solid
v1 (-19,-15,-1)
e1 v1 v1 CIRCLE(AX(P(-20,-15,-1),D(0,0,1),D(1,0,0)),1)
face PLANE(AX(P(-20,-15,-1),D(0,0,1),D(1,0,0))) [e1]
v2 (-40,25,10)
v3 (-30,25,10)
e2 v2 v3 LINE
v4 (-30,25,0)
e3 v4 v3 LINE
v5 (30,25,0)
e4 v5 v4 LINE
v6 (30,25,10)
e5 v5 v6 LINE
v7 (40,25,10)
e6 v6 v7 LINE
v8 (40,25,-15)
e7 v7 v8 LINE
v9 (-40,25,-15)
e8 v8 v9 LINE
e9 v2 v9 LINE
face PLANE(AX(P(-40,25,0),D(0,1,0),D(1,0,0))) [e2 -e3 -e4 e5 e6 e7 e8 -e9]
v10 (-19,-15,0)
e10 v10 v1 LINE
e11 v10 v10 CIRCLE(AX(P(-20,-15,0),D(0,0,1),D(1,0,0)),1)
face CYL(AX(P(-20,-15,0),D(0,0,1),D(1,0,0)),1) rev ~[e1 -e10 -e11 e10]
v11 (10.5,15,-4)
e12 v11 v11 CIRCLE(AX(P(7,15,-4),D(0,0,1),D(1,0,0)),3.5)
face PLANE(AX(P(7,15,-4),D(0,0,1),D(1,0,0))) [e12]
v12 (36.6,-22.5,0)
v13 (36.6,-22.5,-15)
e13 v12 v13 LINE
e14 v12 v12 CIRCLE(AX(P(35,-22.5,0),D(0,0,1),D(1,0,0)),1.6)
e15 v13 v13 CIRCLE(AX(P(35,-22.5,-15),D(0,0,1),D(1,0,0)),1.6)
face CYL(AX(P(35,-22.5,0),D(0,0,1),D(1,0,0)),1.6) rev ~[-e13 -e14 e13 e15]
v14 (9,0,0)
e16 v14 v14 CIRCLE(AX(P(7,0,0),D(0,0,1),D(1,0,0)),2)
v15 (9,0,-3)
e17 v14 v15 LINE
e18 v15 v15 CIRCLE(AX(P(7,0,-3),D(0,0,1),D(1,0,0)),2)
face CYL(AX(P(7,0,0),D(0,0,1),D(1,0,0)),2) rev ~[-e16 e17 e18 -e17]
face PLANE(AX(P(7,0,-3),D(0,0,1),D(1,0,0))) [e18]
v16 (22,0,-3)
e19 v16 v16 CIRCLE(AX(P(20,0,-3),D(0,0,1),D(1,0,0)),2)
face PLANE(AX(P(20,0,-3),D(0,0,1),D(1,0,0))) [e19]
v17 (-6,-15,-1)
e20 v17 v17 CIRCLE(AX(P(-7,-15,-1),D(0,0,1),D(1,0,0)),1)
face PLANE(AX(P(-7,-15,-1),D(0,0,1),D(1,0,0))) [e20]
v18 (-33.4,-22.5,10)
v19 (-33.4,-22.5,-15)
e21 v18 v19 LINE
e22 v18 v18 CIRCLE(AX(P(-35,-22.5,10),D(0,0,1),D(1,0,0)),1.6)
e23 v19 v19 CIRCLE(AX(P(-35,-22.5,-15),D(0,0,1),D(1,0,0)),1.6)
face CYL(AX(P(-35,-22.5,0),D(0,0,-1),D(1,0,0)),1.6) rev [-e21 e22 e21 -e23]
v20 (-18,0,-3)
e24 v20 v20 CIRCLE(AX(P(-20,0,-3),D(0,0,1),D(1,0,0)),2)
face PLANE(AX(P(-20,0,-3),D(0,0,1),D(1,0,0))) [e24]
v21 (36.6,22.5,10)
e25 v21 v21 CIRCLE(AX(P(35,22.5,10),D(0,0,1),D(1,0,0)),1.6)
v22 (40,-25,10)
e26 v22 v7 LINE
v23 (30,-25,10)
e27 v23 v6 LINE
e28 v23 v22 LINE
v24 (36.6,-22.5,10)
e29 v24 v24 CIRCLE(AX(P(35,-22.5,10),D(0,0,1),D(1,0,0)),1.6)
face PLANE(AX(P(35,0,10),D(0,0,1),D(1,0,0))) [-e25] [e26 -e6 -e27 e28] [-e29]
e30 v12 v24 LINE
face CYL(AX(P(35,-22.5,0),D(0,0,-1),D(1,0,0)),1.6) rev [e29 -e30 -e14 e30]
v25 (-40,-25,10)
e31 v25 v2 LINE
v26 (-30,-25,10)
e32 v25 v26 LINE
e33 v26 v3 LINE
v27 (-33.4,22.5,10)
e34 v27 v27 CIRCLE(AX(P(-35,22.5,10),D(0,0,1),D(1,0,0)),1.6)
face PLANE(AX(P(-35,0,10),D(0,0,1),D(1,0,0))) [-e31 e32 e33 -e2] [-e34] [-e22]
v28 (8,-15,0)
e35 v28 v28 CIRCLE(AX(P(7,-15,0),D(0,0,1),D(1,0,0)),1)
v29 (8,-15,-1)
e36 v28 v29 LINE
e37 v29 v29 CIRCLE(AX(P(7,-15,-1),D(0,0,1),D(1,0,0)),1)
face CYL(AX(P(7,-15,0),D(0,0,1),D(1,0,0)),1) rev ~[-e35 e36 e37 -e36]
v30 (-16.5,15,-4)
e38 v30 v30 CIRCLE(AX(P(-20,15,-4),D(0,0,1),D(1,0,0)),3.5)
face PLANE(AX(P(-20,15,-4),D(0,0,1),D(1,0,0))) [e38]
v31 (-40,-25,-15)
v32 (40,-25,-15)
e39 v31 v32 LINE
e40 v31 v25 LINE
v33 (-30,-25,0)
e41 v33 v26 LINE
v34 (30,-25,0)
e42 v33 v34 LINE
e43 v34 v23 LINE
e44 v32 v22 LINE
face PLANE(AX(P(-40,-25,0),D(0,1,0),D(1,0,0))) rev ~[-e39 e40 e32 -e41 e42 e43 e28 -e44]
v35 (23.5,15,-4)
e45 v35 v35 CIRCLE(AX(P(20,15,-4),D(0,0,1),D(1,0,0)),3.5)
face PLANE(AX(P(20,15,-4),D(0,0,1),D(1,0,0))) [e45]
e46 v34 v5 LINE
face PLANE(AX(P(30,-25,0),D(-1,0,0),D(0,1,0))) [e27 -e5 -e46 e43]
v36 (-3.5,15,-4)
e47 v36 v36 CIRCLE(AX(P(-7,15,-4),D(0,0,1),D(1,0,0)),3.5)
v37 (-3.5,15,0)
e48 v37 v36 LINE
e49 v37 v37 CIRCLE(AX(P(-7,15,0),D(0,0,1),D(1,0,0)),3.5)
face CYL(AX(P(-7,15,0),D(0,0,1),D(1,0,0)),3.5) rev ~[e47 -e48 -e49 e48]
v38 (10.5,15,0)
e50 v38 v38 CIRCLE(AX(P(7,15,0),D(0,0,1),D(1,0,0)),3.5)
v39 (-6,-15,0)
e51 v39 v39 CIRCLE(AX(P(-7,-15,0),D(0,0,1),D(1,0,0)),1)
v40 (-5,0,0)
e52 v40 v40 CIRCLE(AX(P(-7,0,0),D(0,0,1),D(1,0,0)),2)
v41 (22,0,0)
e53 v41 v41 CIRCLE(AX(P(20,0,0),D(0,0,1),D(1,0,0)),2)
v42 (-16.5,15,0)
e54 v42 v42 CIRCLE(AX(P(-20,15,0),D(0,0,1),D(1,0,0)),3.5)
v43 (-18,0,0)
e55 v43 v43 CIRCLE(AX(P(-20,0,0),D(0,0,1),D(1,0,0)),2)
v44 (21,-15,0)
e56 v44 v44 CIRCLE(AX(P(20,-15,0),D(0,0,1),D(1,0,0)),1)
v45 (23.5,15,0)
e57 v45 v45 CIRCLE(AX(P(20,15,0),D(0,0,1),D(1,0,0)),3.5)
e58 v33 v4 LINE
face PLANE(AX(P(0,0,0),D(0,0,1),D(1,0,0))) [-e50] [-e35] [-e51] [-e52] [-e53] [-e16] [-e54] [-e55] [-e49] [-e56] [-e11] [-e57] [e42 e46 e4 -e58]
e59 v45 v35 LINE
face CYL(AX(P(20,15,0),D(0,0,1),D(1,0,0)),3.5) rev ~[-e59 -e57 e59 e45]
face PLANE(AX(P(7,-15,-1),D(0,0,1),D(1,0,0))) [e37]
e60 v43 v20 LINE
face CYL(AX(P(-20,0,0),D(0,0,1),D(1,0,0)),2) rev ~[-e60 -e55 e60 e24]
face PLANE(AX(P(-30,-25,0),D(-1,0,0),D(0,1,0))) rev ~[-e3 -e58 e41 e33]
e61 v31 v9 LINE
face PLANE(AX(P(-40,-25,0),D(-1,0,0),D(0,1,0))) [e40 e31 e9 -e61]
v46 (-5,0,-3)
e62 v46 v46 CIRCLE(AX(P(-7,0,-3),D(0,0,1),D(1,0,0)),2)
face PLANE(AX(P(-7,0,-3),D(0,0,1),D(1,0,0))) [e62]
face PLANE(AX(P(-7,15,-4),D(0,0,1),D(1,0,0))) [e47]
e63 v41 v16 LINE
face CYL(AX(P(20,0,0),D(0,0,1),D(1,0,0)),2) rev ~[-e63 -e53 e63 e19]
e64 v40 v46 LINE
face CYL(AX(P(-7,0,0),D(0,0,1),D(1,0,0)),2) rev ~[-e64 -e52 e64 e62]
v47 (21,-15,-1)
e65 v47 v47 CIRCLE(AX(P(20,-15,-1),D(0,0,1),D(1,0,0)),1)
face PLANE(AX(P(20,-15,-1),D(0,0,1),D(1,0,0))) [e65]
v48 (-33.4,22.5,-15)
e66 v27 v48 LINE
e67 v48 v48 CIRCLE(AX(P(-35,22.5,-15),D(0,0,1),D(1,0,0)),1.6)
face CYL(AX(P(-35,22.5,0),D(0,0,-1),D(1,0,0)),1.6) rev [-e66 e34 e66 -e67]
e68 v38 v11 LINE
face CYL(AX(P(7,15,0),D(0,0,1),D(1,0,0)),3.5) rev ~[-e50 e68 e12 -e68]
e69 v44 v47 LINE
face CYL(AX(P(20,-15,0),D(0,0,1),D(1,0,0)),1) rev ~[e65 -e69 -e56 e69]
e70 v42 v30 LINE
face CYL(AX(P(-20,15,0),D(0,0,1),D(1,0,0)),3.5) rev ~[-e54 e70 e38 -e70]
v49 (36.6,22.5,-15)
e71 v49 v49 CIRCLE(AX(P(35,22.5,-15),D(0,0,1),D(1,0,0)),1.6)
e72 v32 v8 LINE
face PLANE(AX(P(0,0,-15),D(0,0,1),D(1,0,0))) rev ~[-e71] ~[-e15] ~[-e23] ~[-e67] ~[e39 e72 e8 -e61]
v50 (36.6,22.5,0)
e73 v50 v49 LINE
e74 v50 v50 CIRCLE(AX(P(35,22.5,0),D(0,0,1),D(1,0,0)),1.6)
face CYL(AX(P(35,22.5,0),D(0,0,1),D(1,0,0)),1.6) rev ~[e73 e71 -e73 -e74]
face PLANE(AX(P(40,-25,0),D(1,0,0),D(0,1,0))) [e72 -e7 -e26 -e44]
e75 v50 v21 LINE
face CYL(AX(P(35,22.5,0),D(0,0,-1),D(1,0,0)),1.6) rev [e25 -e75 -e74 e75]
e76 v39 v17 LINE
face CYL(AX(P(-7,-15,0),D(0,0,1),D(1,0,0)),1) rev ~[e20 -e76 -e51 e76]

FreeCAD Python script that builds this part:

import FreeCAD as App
import Part
import Sketcher
from FreeCAD import Vector

doc = App.newDocument("Part")
body = doc.addObject("PartDesign::Body", "Body")

# Sketch on XY plane
sketch1 = body.newObject("Sketcher::SketchObject", "Sketch")
sketch1.AttachmentSupport = (doc.getObject("XY_Plane"), [""])
sketch1.MapMode = "FlatFace"
sketch1.addGeometry(Part.LineSegment(Vector(-40, -25, 0), Vector(40, -25, 0)), False)
sketch1.addGeometry(Part.LineSegment(Vector(40, -25, 0), Vector(40, 25, 0)), False)
sketch1.addGeometry(Part.LineSegment(Vector(40, 25, 0), Vector(-40, 25, 0)), False)
sketch1.addGeometry(Part.LineSegment(Vector(-40, 25, 0), Vector(-40, -25, 0)), False)
sketch1.addGeometry(Part.Circle(Vector(-35, -22.5, 0), Vector(0, 0, 1), 1.6), False)
sketch1.addGeometry(Part.Circle(Vector(35, -22.5, 0), Vector(0, 0, 1), 1.6), False)
sketch1.addGeometry(Part.Circle(Vector(-35, 22.5, 0), Vector(0, 0, 1), 1.6), False)
sketch1.addGeometry(Part.Circle(Vector(35, 22.5, 0), Vector(0, 0, 1), 1.6), False)
sketch1.addConstraint(Sketcher.Constraint("Coincident", 0, 2, 1, 1))
sketch1.addConstraint(Sketcher.Constraint("Coincident", 1, 2, 2, 1))
sketch1.addConstraint(Sketcher.Constraint("Coincident", 2, 2, 3, 1))
sketch1.addConstraint(Sketcher.Constraint("Coincident", 3, 2, 0, 1))
sketch1.addConstraint(Sketcher.Constraint("Horizontal", 0))
sketch1.addConstraint(Sketcher.Constraint("Vertical", 1))
sketch1.addConstraint(Sketcher.Constraint("Horizontal", 2))
sketch1.addConstraint(Sketcher.Constraint("Vertical", 3))
sketch1.addConstraint(Sketcher.Constraint("Equal", 4, 5))
sketch1.addConstraint(Sketcher.Constraint("Equal", 5, 6))
sketch1.addConstraint(Sketcher.Constraint("Equal", 6, 7))
sketch1.addConstraint(Sketcher.Constraint("Symmetric", 5, 3, 6, 3, -1, 1))
sketch1.addConstraint(Sketcher.Constraint("Symmetric", 4, 3, 7, 3, -1, 1))
sketch1.addConstraint(Sketcher.Constraint("Symmetric", 0, 2, 2, 2, -1, 1))
sketch1.addConstraint(Sketcher.Constraint("Symmetric", 4, 3, 5, 3, -2))
sketch1.addConstraint(Sketcher.Constraint("Diameter", 4, 3.2))
sketch1.addConstraint(Sketcher.Constraint("DistanceX", 0, 1, 0, 2, 80.0))
sketch1.addConstraint(Sketcher.Constraint("DistanceY", 1, 1, 1, 2, 50.0))
sketch1.addConstraint(Sketcher.Constraint("DistanceX", 4, 3, -1, 1, 35.0))
sketch1.addConstraint(Sketcher.Constraint("DistanceY", 4, 3, 6, 3, 45.0))
pad1 = body.newObject("PartDesign::Pad", "Pad")
pad1.Profile = sketch1
pad1.Length = 15
pad1.Reversed = True

# Sketch on XY plane
sketch2 = body.newObject("Sketcher::SketchObject", "Sketch001")
sketch2.AttachmentSupport = (doc.getObject("XY_Plane"), [""])
sketch2.MapMode = "FlatFace"
sketch2.addGeometry(Part.LineSegment(Vector(-40, 25, 0), Vector(-40, -25, 0)), False)
sketch2.addGeometry(Part.LineSegment(Vector(-40, -25, 0), Vector(-30, -25, 0)), False)
sketch2.addGeometry(Part.LineSegment(Vector(-30, -25, 0), Vector(-30, 25, 0)), False)
sketch2.addGeometry(Part.LineSegment(Vector(-30, 25, 0), Vector(-40, 25, 0)), False)
sketch2.addGeometry(Part.Circle(Vector(-35, -22.5, 0), Vector(0, 0, 1), 1.6), False)
sketch2.addGeometry(Part.Circle(Vector(-35, 22.5, 0), Vector(0, 0, 1), 1.6), False)
sketch2.addGeometry(Part.LineSegment(Vector(30, 25, 0), Vector(30, -25, 0)), False)
sketch2.addGeometry(Part.LineSegment(Vector(30, -25, 0), Vector(40, -25, 0)), False)
sketch2.addGeometry(Part.LineSegment(Vector(40, -25, 0), Vector(40, 25, 0)), False)
sketch2.addGeometry(Part.LineSegment(Vector(40, 25, 0), Vector(30, 25, 0)), False)
sketch2.addGeometry(Part.Circle(Vector(35, -22.5, 0), Vector(0, 0, 1), 1.6), False)
sketch2.addGeometry(Part.Circle(Vector(35, 22.5, 0), Vector(0, 0, 1), 1.6), False)
sketch2.addConstraint(Sketcher.Constraint("Coincident", 0, 2, 1, 1))
sketch2.addConstraint(Sketcher.Constraint("Coincident", 1, 2, 2, 1))
sketch2.addConstraint(Sketcher.Constraint("Coincident", 2, 2, 3, 1))
sketch2.addConstraint(Sketcher.Constraint("Coincident", 3, 2, 0, 1))
sketch2.addConstraint(Sketcher.Constraint("Coincident", 6, 2, 7, 1))
sketch2.addConstraint(Sketcher.Constraint("Coincident", 7, 2, 8, 1))
sketch2.addConstraint(Sketcher.Constraint("Coincident", 8, 2, 9, 1))
sketch2.addConstraint(Sketcher.Constraint("Coincident", 9, 2, 6, 1))
sketch2.addConstraint(Sketcher.Constraint("Vertical", 0))
sketch2.addConstraint(Sketcher.Constraint("Horizontal", 1))
sketch2.addConstraint(Sketcher.Constraint("Vertical", 2))
sketch2.addConstraint(Sketcher.Constraint("Horizontal", 3))
sketch2.addConstraint(Sketcher.Constraint("Vertical", 6))
sketch2.addConstraint(Sketcher.Constraint("Horizontal", 7))
sketch2.addConstraint(Sketcher.Constraint("Vertical", 8))
sketch2.addConstraint(Sketcher.Constraint("Horizontal", 9))
sketch2.addConstraint(Sketcher.Constraint("Equal", 4, 5))
sketch2.addConstraint(Sketcher.Constraint("Equal", 5, 10))
sketch2.addConstraint(Sketcher.Constraint("Equal", 10, 11))
sketch2.addConstraint(Sketcher.Constraint("Symmetric", 5, 3, 10, 3, -1, 1))
sketch2.addConstraint(Sketcher.Constraint("Symmetric", 4, 3, 11, 3, -1, 1))
sketch2.addConstraint(Sketcher.Constraint("Symmetric", 2, 2, 6, 2, -1, 1))
sketch2.addConstraint(Sketcher.Constraint("Symmetric", 0, 2, 8, 2, -1, 1))
sketch2.addConstraint(Sketcher.Constraint("Symmetric", 4, 3, 10, 3, -2))
sketch2.addConstraint(Sketcher.Constraint("Horizontal", 1, 2, 6, 2))
sketch2.addConstraint(Sketcher.Constraint("Diameter", 4, 3.2))
sketch2.addConstraint(Sketcher.Constraint("DistanceX", 1, 1, 1, 2, 10.0))
sketch2.addConstraint(Sketcher.Constraint("DistanceY", 0, 2, 0, 1, 50.0))
sketch2.addConstraint(Sketcher.Constraint("DistanceX", 4, 3, -1, 1, 35.0))
sketch2.addConstraint(Sketcher.Constraint("DistanceX", 0, 2, -1, 1, 40.0))
sketch2.addConstraint(Sketcher.Constraint("DistanceY", 4, 3, 5, 3, 45.0))
pad2 = body.newObject("PartDesign::Pad", "Pad001")
pad2.Profile = sketch2
pad2.Length = 10

# Sketch on XY plane
sketch3 = body.newObject("Sketcher::SketchObject", "Sketch002")
sketch3.AttachmentSupport = (doc.getObject("XY_Plane"), [""])
sketch3.MapMode = "FlatFace"
sketch3.addGeometry(Part.Circle(Vector(-20, 15, 0), Vector(0, 0, 1), 3.5), False)
sketch3.addGeometry(Part.Circle(Vector(-7, 15, 0), Vector(0, 0, 1), 3.5), False)
sketch3.addGeometry(Part.Circle(Vector(7, 15, 0), Vector(0, 0, 1), 3.5), False)
sketch3.addGeometry(Part.Circle(Vector(20, 15, 0), Vector(0, 0, 1), 3.5), False)
sketch3.addConstraint(Sketcher.Constraint("Equal", 0, 1))
sketch3.addConstraint(Sketcher.Constraint("Equal", 1, 2))
sketch3.addConstraint(Sketcher.Constraint("Equal", 2, 3))
sketch3.addConstraint(Sketcher.Constraint("Symmetric", 1, 3, 2, 3, -2))
sketch3.addConstraint(Sketcher.Constraint("Symmetric", 0, 3, 3, 3, -2))
sketch3.addConstraint(Sketcher.Constraint("Horizontal", 0, 3, 1, 3))
sketch3.addConstraint(Sketcher.Constraint("Diameter", 0, 7.0))
sketch3.addConstraint(Sketcher.Constraint("DistanceX", 0, 3, -1, 1, 20.0))
sketch3.addConstraint(Sketcher.Constraint("DistanceY", -1, 1, 0, 3, 15.0))
sketch3.addConstraint(Sketcher.Constraint("DistanceX", 1, 3, -1, 1, 7.0))
pocket1 = body.newObject("PartDesign::Pocket", "Pocket")
pocket1.Profile = sketch3
pocket1.Length = 4

# Sketch on XY plane
sketch4 = body.newObject("Sketcher::SketchObject", "Sketch003")
sketch4.AttachmentSupport = (doc.getObject("XY_Plane"), [""])
sketch4.MapMode = "FlatFace"
sketch4.addGeometry(Part.Circle(Vector(-20, 0, 0), Vector(0, 0, 1), 2), False)
sketch4.addGeometry(Part.Circle(Vector(-7, 0, 0), Vector(0, 0, 1), 2), False)
sketch4.addGeometry(Part.Circle(Vector(7, 0, 0), Vector(0, 0, 1), 2), False)
sketch4.addGeometry(Part.Circle(Vector(20, 0, 0), Vector(0, 0, 1), 2), False)
sketch4.addConstraint(Sketcher.Constraint("Equal", 0, 1))
sketch4.addConstraint(Sketcher.Constraint("Equal", 1, 2))
sketch4.addConstraint(Sketcher.Constraint("Equal", 2, 3))
sketch4.addConstraint(Sketcher.Constraint("Symmetric", 1, 3, 2, 3, -1, 1))
sketch4.addConstraint(Sketcher.Constraint("Symmetric", 0, 3, 3, 3, -1, 1))
sketch4.addConstraint(Sketcher.Constraint("PointOnObject", 0, 3, -1))
sketch4.addConstraint(Sketcher.Constraint("PointOnObject", 1, 3, -1))
sketch4.addConstraint(Sketcher.Constraint("Diameter", 0, 4.0))
sketch4.addConstraint(Sketcher.Constraint("DistanceX", 0, 3, -1, 1, 20.0))
sketch4.addConstraint(Sketcher.Constraint("DistanceX", 1, 3, -1, 1, 7.0))
pocket2 = body.newObject("PartDesign::Pocket", "Pocket001")
pocket2.Profile = sketch4
pocket2.Length = 3

# Sketch on XY plane
sketch5 = body.newObject("Sketcher::SketchObject", "Sketch004")
sketch5.AttachmentSupport = (doc.getObject("XY_Plane"), [""])
sketch5.MapMode = "FlatFace"
sketch5.addGeometry(Part.Circle(Vector(-20, -15, 0), Vector(0, 0, 1), 1), False)
sketch5.addGeometry(Part.Circle(Vector(-7, -15, 0), Vector(0, 0, 1), 1), False)
sketch5.addGeometry(Part.Circle(Vector(7, -15, 0), Vector(0, 0, 1), 1), False)
sketch5.addGeometry(Part.Circle(Vector(20, -15, 0), Vector(0, 0, 1), 1), False)
sketch5.addConstraint(Sketcher.Constraint("Equal", 0, 1))
sketch5.addConstraint(Sketcher.Constraint("Equal", 1, 2))
sketch5.addConstraint(Sketcher.Constraint("Equal", 2, 3))
sketch5.addConstraint(Sketcher.Constraint("Symmetric", 1, 3, 2, 3, -2))
sketch5.addConstraint(Sketcher.Constraint("Symmetric", 0, 3, 3, 3, -2))
sketch5.addConstraint(Sketcher.Constraint("Horizontal", 0, 3, 1, 3))
sketch5.addConstraint(Sketcher.Constraint("Diameter", 0, 2.0))
sketch5.addConstraint(Sketcher.Constraint("DistanceX", 0, 3, -1, 1, 20.0))
sketch5.addConstraint(Sketcher.Constraint("DistanceY", 0, 3, -1, 1, 15.0))
sketch5.addConstraint(Sketcher.Constraint("DistanceX", 1, 3, -1, 1, 7.0))
pocket3 = body.newObject("PartDesign::Pocket", "Pocket002")
pocket3.Profile = sketch5
pocket3.Length = 1

doc.recompute()
